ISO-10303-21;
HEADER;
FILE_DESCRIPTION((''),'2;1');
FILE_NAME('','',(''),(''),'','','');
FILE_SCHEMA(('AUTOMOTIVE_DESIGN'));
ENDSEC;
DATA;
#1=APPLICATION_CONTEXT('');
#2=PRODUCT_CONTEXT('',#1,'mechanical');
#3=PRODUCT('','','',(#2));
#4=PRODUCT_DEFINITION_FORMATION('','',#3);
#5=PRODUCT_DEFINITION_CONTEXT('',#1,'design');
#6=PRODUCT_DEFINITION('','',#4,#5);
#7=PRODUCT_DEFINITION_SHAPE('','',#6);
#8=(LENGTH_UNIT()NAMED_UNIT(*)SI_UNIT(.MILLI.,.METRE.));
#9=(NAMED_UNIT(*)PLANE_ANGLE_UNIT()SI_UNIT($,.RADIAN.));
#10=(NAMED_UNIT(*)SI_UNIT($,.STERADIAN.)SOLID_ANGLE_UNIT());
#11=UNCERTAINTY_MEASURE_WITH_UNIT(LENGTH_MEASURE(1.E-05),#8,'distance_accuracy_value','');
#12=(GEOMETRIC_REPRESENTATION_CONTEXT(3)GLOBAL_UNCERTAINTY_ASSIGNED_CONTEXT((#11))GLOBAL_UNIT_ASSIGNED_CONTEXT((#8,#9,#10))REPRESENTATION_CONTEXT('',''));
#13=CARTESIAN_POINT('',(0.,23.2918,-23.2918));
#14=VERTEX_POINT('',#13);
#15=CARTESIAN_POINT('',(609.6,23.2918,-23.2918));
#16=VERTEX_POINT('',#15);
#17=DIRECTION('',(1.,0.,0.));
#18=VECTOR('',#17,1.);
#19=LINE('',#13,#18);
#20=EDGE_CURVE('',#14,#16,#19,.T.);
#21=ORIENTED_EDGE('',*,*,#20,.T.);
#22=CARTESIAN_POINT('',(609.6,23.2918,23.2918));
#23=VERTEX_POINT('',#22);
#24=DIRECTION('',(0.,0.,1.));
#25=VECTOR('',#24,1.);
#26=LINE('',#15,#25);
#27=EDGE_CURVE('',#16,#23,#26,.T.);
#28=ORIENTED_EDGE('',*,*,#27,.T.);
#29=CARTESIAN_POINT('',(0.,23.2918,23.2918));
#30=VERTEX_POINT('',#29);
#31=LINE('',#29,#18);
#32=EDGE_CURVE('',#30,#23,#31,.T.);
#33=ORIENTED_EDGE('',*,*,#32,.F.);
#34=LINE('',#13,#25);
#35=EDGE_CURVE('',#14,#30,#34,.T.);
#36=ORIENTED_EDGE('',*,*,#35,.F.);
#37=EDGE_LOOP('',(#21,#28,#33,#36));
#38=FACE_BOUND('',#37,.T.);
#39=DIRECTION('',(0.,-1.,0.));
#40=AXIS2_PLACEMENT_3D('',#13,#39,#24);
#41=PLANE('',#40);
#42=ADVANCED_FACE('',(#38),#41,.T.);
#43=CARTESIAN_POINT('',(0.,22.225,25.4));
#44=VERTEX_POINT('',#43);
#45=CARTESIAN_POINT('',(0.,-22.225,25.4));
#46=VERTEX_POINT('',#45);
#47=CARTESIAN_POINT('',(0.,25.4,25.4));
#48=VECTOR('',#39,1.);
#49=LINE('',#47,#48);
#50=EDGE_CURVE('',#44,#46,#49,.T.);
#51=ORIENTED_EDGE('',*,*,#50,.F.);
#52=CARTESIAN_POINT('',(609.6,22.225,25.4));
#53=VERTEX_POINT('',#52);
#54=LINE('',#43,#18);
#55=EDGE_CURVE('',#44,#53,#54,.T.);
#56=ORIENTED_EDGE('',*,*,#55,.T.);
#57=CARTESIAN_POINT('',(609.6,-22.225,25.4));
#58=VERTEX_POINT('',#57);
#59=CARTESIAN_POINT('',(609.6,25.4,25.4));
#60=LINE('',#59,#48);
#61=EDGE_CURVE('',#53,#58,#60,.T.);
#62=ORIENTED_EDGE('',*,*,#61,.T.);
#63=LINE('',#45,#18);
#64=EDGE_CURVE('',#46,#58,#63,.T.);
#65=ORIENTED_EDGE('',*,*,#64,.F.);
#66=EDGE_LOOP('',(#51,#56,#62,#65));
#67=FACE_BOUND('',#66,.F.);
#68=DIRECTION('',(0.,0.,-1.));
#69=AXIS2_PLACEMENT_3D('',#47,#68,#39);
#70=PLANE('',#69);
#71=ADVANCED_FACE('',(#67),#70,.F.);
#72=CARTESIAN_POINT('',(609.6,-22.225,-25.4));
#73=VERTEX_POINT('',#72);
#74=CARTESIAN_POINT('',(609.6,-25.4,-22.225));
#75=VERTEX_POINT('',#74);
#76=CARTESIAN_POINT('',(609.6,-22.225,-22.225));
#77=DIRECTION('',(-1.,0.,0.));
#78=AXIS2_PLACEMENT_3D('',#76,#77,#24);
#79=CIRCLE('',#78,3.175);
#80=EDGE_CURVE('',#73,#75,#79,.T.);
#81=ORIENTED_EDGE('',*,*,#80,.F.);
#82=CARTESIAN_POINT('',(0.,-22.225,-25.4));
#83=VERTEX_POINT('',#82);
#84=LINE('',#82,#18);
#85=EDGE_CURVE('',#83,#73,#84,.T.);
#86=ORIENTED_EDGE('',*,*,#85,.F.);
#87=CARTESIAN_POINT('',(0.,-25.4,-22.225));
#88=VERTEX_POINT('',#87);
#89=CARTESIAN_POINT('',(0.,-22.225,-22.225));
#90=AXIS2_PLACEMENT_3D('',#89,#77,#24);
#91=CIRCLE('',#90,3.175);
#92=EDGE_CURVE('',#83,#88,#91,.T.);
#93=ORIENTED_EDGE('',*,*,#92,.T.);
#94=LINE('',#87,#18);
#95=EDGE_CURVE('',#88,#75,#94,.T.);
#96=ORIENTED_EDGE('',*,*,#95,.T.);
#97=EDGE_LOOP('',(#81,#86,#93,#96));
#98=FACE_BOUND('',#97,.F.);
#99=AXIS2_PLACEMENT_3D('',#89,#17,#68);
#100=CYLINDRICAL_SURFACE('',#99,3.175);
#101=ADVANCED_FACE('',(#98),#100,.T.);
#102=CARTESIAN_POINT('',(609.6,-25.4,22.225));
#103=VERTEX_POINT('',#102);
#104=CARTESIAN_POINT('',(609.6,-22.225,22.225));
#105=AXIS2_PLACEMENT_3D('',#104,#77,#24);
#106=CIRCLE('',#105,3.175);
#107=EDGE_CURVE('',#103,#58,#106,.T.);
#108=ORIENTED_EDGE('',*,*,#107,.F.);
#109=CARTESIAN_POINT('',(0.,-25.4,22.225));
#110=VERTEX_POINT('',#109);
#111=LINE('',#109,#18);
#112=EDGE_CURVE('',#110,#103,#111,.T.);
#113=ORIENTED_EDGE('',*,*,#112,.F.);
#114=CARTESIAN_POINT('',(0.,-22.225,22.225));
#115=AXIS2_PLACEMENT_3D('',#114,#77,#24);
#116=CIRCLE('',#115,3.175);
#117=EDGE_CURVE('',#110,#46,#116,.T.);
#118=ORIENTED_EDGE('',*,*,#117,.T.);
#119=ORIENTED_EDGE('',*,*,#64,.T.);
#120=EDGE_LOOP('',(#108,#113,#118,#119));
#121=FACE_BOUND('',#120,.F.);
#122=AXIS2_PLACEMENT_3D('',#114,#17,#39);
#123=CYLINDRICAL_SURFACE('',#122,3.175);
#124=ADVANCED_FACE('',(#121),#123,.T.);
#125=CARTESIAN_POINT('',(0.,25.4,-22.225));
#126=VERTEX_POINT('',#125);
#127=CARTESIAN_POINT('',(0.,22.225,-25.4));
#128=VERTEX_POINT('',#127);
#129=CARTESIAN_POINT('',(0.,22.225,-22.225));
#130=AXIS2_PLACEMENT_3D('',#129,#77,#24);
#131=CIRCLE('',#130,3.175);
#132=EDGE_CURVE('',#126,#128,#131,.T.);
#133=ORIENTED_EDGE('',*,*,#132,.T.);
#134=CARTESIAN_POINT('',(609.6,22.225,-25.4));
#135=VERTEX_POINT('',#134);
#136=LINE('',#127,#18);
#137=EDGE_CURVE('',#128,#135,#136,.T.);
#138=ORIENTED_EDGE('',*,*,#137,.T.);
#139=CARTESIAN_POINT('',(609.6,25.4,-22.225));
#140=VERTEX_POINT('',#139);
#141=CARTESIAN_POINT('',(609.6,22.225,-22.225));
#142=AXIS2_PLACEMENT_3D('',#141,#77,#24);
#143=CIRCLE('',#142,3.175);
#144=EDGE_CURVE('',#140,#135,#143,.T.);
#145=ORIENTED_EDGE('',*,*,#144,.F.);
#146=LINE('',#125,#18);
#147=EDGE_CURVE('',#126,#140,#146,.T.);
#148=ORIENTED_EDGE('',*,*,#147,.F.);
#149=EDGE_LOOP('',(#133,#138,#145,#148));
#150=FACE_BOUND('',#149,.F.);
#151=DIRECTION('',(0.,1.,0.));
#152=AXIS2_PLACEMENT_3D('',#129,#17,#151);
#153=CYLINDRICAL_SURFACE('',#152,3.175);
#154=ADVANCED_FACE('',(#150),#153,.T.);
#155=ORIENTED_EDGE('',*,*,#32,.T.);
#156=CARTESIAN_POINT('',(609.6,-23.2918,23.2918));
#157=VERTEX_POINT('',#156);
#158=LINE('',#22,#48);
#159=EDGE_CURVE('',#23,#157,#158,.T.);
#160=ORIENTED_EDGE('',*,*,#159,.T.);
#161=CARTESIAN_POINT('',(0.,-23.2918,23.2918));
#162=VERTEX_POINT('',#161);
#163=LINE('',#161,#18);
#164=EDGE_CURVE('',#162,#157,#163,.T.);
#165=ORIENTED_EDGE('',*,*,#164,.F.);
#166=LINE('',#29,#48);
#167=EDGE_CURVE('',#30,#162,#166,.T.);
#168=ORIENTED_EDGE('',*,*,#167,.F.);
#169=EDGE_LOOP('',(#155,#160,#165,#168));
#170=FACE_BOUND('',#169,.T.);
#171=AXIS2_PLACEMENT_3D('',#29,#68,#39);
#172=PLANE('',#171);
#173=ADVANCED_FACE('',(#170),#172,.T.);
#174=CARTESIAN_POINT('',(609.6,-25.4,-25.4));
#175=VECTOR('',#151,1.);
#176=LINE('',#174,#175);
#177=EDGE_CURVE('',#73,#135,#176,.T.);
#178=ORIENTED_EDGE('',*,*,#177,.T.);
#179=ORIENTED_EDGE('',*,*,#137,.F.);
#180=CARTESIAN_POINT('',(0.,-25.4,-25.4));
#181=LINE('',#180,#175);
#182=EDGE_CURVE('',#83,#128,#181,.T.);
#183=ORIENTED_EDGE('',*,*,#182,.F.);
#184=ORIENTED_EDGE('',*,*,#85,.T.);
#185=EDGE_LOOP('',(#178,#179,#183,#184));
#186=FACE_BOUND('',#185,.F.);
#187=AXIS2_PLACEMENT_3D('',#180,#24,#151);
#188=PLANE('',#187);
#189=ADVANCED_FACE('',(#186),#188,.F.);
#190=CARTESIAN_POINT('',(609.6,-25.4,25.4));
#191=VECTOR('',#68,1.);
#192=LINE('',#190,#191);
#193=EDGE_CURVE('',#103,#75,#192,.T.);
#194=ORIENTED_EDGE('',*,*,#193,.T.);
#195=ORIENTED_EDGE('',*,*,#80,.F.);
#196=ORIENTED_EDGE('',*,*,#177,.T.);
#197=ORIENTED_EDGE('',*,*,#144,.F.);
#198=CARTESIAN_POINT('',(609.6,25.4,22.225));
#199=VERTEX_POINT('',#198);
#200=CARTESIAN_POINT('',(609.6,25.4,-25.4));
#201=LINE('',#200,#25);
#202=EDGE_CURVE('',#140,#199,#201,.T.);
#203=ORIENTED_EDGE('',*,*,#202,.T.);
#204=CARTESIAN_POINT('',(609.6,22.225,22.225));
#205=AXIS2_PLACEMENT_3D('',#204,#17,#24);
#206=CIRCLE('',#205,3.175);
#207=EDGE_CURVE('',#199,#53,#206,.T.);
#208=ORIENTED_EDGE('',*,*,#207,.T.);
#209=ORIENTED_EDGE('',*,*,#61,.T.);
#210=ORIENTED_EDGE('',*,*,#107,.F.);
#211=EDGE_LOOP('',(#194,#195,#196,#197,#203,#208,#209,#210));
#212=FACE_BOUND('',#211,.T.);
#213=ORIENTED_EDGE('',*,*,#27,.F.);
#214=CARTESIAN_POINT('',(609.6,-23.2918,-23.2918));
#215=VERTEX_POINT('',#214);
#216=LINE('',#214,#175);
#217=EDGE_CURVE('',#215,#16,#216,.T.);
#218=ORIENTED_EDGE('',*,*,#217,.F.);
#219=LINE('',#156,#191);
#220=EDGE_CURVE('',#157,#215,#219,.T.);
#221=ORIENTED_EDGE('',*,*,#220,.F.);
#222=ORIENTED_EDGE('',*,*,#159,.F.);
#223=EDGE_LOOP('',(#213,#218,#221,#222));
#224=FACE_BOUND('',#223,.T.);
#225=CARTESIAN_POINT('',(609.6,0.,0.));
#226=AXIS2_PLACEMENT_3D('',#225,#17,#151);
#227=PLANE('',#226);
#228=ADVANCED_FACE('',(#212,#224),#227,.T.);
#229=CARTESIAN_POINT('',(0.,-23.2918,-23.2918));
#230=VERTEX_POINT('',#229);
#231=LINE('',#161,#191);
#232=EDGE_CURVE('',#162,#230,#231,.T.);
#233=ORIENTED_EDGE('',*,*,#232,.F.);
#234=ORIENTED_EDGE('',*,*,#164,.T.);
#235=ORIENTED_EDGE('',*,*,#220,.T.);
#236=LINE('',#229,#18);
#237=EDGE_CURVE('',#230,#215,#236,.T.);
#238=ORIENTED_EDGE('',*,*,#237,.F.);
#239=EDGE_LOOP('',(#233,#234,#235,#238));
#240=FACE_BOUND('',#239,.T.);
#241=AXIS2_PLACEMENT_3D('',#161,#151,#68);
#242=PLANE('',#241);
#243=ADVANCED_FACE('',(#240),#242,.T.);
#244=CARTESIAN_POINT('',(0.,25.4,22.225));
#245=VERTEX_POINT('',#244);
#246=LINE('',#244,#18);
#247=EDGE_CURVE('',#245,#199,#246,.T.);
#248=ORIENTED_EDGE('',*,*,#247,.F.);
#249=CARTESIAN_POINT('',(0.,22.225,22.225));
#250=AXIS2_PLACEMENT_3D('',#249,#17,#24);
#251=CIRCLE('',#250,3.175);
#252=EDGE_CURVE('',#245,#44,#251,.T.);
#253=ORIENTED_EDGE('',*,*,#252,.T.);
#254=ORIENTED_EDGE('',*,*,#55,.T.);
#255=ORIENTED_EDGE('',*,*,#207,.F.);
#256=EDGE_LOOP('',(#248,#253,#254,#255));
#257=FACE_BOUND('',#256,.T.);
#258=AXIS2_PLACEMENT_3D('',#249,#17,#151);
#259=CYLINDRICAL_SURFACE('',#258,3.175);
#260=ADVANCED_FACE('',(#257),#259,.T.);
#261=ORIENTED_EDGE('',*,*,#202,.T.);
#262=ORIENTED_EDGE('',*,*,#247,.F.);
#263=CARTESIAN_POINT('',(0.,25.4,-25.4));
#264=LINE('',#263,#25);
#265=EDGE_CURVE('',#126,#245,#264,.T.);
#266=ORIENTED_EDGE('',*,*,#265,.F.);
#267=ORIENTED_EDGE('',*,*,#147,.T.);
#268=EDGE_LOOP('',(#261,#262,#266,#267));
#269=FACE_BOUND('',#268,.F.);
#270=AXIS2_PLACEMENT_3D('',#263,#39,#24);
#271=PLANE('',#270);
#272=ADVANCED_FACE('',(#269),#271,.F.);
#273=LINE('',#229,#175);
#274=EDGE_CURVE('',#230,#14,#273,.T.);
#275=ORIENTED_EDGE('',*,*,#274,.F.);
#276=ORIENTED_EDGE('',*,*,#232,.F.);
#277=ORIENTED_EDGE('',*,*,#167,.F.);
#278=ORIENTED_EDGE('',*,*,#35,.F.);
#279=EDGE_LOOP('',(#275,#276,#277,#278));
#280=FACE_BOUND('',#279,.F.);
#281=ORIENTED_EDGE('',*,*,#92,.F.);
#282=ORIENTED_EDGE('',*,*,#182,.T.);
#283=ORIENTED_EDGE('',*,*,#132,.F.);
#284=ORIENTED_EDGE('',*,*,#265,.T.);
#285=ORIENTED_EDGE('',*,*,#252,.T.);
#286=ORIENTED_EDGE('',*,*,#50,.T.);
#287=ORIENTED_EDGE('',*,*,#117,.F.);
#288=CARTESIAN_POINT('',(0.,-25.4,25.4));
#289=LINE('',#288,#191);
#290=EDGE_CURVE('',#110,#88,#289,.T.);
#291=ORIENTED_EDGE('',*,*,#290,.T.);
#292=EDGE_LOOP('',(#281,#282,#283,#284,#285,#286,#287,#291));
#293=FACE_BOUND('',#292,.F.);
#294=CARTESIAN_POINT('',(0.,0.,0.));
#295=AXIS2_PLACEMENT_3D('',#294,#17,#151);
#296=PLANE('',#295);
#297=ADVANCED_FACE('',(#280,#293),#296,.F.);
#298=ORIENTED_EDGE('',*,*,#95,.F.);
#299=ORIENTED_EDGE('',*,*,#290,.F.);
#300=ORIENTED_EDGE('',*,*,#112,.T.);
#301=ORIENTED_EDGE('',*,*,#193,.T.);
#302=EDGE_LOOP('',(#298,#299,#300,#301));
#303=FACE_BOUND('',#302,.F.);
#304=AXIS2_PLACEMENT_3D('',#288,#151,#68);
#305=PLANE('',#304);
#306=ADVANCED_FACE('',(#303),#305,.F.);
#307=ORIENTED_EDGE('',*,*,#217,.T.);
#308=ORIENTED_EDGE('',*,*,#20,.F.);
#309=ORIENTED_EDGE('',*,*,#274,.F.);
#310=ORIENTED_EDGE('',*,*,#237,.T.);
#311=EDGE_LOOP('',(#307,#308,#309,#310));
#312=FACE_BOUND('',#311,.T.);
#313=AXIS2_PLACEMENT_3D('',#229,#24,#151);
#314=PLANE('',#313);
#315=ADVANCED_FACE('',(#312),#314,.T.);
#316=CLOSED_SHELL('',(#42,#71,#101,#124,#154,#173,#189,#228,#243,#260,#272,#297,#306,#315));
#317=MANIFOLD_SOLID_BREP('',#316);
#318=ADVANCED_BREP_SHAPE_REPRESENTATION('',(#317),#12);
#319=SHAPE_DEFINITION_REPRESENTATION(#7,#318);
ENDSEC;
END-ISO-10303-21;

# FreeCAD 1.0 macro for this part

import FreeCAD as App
import Part
import Sketcher
from FreeCAD import Vector
Q = App.Units.Quantity


def edges_at(feature, points):
    """Names of the edges that pass closest to the given points."""
    edges = feature.Shape.Edges
    near = lambda p: min(range(len(edges)), key=lambda i: edges[i].distToShape(Part.Vertex(*p))[0])
    return sorted({f"Edge{near(p) + 1}" for p in points})

doc = App.newDocument("Part")
params = doc.addObject("Spreadsheet::Sheet", "Params")
for row, (alias, value) in enumerate([
    ("sketch1_width", "2 in"),
    ("pad1_length", "24 in"),
    ("fillet_radius", "0.125 in"),
], start=1):
    params.set(f"A{row}", alias)
    params.set(f"B{row}", "=" + value)
    params.setAlias(f"B{row}", alias)

body = doc.addObject("PartDesign::Body", "Body")

sketch1 = body.newObject("Sketcher::SketchObject", "Sketch")
sketch1.AttachmentSupport = (doc.getObject("YZ_Plane"), [""])
sketch1.MapMode = "FlatFace"
sketch1.addGeometry([
    Part.LineSegment(Vector(25, -25, 0), Vector(25, 25, 0)),
    Part.LineSegment(Vector(25, 25, 0), Vector(-25, 25, 0)),
    Part.LineSegment(Vector(-25, 25, 0), Vector(-25, -25, 0)),
    Part.LineSegment(Vector(-25, -25, 0), Vector(25, -25, 0)),
    Part.LineSegment(Vector(-23, 23, 0), Vector(23, 23, 0)),
    Part.LineSegment(Vector(23, 23, 0), Vector(23, -23, 0)),
    Part.LineSegment(Vector(23, -23, 0), Vector(-23, -23, 0)),
    Part.LineSegment(Vector(-23, -23, 0), Vector(-23, 23, 0)),
], False)
sketch1.addConstraint([
    Sketcher.Constraint("Coincident", 0, 2, 1, 1),
    Sketcher.Constraint("Coincident", 1, 2, 2, 1),
    Sketcher.Constraint("Coincident", 2, 2, 3, 1),
    Sketcher.Constraint("Coincident", 3, 2, 0, 1),
    Sketcher.Constraint("Coincident", 4, 2, 5, 1),
    Sketcher.Constraint("Coincident", 5, 2, 6, 1),
    Sketcher.Constraint("Coincident", 6, 2, 7, 1),
    Sketcher.Constraint("Coincident", 7, 2, 4, 1),
    Sketcher.Constraint("Vertical", 0),
    Sketcher.Constraint("Horizontal", 1),
    Sketcher.Constraint("Vertical", 2),
    Sketcher.Constraint("Horizontal", 3),
    Sketcher.Constraint("Horizontal", 4),
    Sketcher.Constraint("Vertical", 5),
    Sketcher.Constraint("Horizontal", 6),
    Sketcher.Constraint("Vertical", 7),
    Sketcher.Constraint("Symmetric", 0, 2, 2, 2, -1, 1),
    Sketcher.Constraint("Symmetric", 4, 2, 6, 2, -1, 1),
    Sketcher.Constraint("Equal", 3, 0),
    Sketcher.Constraint("Equal", 6, 5),
    Sketcher.Constraint("DistanceX", 1, 2, 1, 1, Q("2 in")),
    Sketcher.Constraint("DistanceX", 4, 2, 0, 2, Q("0.083 in")),
])
sketch1.setExpression("Constraints[20]", "Params.sketch1_width")
pad1 = body.newObject("PartDesign::Pad", "Pad")
pad1.Profile = sketch1
pad1.setExpression("Length", "Params.pad1_length")
doc.recompute()

fillet = body.newObject("PartDesign::Fillet", "Fillet")
fillet.Base = (pad1, edges_at(pad1, [
    (304.8, 25.4, 25.4),
    (304.8, -25.4, 25.4),
    (304.8, 25.4, -25.4),
    (304.8, -25.4, -25.4),
]))
fillet.setExpression("Radius", "Params.fillet_radius")

doc.recompute()
